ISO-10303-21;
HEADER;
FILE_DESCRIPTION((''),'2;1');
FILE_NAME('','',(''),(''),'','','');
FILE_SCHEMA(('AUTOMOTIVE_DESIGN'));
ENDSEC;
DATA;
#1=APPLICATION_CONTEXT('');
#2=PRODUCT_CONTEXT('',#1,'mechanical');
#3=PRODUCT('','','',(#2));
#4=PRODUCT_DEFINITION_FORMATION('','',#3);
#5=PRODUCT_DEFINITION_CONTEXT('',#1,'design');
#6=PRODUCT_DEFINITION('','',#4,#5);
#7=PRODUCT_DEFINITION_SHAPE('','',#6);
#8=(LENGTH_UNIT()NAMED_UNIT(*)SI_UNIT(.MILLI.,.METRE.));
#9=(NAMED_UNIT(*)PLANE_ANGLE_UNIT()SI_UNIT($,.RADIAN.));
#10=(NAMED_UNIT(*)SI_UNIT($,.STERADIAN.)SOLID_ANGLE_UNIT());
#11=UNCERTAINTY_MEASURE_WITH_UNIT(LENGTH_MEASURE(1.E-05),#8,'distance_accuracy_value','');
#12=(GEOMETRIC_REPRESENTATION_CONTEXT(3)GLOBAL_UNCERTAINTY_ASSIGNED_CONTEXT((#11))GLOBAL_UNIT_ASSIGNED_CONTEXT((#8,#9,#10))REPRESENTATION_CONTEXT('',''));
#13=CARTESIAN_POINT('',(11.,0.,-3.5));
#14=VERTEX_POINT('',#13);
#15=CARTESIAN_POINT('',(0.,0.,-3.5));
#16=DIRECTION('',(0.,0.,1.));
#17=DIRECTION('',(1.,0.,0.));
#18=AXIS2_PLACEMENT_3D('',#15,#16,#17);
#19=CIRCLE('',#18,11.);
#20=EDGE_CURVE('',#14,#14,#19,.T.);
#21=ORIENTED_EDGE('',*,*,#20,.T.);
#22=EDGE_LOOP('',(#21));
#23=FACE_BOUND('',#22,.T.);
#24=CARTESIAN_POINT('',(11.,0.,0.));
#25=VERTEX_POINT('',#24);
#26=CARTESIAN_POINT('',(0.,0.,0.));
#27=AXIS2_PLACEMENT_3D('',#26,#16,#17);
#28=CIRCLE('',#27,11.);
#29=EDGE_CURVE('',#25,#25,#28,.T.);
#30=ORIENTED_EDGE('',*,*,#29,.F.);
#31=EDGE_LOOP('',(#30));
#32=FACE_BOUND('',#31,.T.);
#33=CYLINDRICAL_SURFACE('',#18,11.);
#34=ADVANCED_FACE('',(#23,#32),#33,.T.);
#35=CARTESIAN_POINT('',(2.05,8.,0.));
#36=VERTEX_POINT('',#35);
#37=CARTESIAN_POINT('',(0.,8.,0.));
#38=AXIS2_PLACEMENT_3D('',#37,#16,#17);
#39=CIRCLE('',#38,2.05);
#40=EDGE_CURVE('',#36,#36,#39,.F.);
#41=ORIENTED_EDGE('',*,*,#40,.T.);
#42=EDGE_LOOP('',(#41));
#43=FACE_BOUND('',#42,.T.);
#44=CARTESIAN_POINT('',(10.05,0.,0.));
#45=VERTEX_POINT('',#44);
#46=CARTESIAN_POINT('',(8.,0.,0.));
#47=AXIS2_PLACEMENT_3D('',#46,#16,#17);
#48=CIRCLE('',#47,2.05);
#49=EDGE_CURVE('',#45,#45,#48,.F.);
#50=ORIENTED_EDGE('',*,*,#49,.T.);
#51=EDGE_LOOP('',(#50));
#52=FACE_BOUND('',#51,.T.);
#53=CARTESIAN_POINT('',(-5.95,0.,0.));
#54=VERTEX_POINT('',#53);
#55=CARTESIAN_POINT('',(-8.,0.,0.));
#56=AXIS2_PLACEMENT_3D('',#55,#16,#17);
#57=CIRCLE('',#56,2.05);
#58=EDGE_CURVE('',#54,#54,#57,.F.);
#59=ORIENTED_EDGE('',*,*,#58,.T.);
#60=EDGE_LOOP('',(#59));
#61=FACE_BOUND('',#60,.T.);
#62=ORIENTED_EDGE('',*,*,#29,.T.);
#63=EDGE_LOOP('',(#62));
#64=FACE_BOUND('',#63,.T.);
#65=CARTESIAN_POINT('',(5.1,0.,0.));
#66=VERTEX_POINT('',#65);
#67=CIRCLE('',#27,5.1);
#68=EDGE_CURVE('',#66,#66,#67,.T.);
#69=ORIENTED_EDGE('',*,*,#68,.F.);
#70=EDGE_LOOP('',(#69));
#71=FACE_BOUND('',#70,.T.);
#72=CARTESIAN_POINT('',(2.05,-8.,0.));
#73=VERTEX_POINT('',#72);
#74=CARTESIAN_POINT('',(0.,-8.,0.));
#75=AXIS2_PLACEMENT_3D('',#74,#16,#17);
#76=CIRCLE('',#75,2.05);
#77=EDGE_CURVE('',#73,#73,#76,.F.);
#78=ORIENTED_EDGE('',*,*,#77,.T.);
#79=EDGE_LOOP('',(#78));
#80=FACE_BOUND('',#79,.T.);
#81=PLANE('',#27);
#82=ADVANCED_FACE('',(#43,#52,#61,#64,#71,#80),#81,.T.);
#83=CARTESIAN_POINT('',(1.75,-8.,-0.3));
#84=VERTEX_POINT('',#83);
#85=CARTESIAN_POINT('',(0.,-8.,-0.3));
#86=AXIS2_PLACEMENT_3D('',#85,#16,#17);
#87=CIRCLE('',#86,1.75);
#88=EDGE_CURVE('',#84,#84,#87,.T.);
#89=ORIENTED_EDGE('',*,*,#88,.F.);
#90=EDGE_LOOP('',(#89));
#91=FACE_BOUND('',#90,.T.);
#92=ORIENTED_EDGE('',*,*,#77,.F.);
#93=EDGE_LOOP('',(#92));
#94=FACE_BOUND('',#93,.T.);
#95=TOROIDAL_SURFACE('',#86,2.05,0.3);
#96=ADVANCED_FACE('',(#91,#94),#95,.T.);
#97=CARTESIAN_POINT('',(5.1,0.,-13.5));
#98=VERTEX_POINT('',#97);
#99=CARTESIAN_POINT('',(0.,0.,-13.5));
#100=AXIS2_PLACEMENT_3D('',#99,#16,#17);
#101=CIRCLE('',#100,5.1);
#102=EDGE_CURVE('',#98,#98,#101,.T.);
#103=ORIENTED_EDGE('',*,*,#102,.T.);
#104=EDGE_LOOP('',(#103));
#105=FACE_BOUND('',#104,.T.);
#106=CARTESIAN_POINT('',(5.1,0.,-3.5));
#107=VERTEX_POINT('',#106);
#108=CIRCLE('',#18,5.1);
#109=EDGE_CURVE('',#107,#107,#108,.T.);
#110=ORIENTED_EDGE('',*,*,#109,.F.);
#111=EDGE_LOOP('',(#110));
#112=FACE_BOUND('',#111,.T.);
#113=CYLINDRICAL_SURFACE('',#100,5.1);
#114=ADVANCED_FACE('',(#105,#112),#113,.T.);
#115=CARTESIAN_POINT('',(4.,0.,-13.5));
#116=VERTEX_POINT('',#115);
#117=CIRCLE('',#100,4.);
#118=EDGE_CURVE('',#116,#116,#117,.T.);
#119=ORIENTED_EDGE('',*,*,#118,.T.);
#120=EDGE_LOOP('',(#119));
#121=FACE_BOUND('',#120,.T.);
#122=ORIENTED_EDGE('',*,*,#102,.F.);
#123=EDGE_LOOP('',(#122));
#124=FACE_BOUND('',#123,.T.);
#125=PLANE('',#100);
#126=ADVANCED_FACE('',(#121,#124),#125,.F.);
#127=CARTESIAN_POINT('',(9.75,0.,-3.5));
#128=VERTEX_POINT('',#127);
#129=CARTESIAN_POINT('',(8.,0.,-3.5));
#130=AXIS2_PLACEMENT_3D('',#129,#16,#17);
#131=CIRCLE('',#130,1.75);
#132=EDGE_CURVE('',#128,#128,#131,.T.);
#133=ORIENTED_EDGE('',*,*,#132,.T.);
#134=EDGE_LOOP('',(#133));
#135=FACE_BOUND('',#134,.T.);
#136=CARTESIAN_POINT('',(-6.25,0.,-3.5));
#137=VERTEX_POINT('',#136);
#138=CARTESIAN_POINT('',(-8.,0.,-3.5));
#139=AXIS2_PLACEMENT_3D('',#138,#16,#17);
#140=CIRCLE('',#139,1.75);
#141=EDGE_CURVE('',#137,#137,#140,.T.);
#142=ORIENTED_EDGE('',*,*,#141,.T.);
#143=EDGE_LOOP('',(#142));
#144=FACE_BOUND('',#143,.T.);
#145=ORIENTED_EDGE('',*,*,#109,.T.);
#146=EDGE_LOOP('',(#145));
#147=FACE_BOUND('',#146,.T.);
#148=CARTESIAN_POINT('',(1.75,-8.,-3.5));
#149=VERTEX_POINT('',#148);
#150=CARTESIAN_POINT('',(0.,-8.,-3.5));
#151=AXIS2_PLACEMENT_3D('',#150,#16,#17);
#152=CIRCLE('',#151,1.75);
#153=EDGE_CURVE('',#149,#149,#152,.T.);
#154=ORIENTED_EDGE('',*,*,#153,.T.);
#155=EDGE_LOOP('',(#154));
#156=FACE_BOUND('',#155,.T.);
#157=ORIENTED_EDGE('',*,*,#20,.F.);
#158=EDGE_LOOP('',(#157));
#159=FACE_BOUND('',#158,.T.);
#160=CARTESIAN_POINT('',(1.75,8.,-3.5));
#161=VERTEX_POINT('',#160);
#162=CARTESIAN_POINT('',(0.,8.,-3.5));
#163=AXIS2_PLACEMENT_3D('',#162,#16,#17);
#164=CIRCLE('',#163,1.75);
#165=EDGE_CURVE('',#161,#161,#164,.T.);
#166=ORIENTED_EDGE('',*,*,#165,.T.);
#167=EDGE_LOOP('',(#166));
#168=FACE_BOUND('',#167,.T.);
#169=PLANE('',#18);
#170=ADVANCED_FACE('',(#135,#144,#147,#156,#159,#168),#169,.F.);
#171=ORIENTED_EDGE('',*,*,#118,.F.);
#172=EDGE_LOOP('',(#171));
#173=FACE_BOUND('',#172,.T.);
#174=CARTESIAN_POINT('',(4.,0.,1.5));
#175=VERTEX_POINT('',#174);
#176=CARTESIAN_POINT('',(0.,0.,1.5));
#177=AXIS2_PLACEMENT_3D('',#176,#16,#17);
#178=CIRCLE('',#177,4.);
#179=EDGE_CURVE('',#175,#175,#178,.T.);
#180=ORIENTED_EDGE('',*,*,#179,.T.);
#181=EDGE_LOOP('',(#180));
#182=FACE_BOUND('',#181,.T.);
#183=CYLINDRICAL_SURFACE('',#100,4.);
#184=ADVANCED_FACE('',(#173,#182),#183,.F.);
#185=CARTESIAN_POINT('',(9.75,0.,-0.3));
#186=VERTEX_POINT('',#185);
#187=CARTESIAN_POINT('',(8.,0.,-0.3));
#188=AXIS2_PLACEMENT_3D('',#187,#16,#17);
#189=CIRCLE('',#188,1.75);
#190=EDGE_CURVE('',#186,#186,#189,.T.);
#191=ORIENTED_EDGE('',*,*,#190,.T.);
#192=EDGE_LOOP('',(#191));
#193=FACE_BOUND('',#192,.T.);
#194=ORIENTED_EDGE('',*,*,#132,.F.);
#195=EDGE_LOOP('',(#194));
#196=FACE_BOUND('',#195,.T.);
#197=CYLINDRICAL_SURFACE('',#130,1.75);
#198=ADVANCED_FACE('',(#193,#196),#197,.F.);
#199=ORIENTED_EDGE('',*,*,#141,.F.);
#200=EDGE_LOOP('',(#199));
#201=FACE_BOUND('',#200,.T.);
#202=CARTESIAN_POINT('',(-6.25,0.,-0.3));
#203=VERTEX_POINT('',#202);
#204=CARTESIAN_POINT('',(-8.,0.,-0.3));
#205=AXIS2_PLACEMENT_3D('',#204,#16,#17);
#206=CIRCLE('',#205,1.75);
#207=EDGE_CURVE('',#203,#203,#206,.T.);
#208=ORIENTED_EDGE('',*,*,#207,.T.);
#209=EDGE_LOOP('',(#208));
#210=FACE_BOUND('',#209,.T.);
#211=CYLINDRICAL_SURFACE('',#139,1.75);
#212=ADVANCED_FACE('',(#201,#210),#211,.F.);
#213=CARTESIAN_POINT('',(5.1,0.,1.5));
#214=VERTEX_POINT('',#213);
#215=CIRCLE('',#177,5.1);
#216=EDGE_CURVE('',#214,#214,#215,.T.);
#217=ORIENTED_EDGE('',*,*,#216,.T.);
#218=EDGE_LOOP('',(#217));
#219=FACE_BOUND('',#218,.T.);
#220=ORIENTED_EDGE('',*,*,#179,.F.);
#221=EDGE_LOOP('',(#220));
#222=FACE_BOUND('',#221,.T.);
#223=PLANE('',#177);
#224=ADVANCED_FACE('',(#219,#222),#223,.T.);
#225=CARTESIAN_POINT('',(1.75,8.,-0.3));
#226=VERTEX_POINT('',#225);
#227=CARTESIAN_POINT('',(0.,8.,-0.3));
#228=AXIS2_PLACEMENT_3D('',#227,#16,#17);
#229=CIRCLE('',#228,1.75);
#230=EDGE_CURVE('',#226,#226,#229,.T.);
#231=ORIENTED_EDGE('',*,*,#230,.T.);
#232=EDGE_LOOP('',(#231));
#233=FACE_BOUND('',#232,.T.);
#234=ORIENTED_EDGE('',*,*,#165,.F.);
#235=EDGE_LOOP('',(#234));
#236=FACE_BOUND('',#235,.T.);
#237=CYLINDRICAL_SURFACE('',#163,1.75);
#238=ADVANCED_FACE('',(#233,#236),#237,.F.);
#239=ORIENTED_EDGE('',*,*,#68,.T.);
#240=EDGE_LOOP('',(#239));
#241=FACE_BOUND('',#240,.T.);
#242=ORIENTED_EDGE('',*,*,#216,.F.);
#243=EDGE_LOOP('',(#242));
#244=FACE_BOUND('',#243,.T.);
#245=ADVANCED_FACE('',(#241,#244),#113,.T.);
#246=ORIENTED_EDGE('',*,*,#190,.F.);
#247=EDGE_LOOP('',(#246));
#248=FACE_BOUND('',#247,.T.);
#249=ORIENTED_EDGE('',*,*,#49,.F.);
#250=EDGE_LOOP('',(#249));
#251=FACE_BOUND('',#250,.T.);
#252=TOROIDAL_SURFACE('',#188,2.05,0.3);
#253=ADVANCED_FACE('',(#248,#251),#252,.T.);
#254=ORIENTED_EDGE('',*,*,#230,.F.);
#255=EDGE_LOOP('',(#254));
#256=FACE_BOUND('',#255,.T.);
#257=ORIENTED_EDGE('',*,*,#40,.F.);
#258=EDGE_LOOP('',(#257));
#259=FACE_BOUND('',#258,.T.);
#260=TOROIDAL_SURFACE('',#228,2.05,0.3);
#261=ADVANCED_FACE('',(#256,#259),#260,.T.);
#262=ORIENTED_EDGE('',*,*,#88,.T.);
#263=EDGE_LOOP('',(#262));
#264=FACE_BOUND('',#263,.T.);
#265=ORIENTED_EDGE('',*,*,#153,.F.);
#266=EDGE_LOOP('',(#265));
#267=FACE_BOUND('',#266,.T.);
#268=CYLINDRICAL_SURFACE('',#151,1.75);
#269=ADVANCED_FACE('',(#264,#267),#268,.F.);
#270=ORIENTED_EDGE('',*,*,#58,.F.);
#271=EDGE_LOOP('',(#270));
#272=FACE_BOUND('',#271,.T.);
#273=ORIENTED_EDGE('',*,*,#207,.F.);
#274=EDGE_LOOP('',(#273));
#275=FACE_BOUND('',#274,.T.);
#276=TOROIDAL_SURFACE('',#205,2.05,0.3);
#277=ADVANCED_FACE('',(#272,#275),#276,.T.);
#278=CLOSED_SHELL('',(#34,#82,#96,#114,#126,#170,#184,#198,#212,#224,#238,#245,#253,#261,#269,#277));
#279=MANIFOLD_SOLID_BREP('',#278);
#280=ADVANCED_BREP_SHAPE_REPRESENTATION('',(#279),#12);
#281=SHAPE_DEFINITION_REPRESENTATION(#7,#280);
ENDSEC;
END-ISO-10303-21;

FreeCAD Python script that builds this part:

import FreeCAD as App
import Part
import Sketcher


def edges_at(feature, points):
    """Names of the edges that pass closest to the given points."""
    edges = feature.Shape.Edges
    near = lambda p: min(range(len(edges)), key=lambda i: edges[i].distToShape(Part.Vertex(*p))[0])
    return sorted({f"Edge{near(p) + 1}" for p in points})

doc = App.newDocument("Part")
body = doc.addObject("PartDesign::Body", "Body")

# Sketch on XY plane
sketch1 = body.newObject("Sketcher::SketchObject", "Sketch")
sketch1.AttachmentSupport = (doc.getObject("XY_Plane"), [""])
sketch1.MapMode = "FlatFace"
sketch1.addGeometry(Part.Circle(App.Vector(0, 0, 0), App.Vector(0, 0, 1), 11), False)
sketch1.addGeometry(Part.Circle(App.Vector(0, -8, 0), App.Vector(0, 0, 1), 1.8), False)
sketch1.addGeometry(Part.Circle(App.Vector(-8, 0, 0), App.Vector(0, 0, 1), 1.8), False)
sketch1.addGeometry(Part.Circle(App.Vector(0, 0, 0), App.Vector(0, 0, 1), 5.1), False)
sketch1.addGeometry(Part.Circle(App.Vector(8, 0, 0), App.Vector(0, 0, 1), 1.8), False)
sketch1.addGeometry(Part.Circle(App.Vector(0, 8, 0), App.Vector(0, 0, 1), 1.8), False)
sketch1.addConstraint(Sketcher.Constraint("Coincident", 0, 3, -1, 1))
sketch1.addConstraint(Sketcher.Constraint("Coincident", 3, 3, -1, 1))
sketch1.addConstraint(Sketcher.Constraint("Equal", 1, 2))
sketch1.addConstraint(Sketcher.Constraint("Equal", 2, 4))
sketch1.addConstraint(Sketcher.Constraint("Equal", 4, 5))
sketch1.addConstraint(Sketcher.Constraint("Symmetric", 2, 3, 4, 3, -1, 1))
sketch1.addConstraint(Sketcher.Constraint("Symmetric", 1, 3, 5, 3, -1, 1))
sketch1.addConstraint(Sketcher.Constraint("PointOnObject", 1, 3, -2))
sketch1.addConstraint(Sketcher.Constraint("PointOnObject", 2, 3, -1))
sketch1.addConstraint(Sketcher.Constraint("Diameter", 0, 22.0))
sketch1.addConstraint(Sketcher.Constraint("Diameter", 1, 3.5))
sketch1.addConstraint(Sketcher.Constraint("Diameter", 3, 10.2))
sketch1.addConstraint(Sketcher.Constraint("DistanceY", 1, 3, -1, 1, 8.0))
sketch1.addConstraint(Sketcher.Constraint("DistanceX", 2, 3, -1, 1, 8.0))
pad1 = body.newObject("PartDesign::Pad", "Pad")
pad1.Profile = sketch1
pad1.Length = 3.5
pad1.Reversed = True

# Sketch on XY plane
sketch2 = body.newObject("Sketcher::SketchObject", "Sketch001")
sketch2.AttachmentSupport = (doc.getObject("XY_Plane"), [""])
sketch2.MapMode = "FlatFace"
sketch2.addGeometry(Part.Circle(App.Vector(0, 0, 0), App.Vector(0, 0, 1), 5.1), False)
sketch2.addGeometry(Part.Circle(App.Vector(0, 0, 0), App.Vector(0, 0, 1), 4), False)
sketch2.addConstraint(Sketcher.Constraint("Coincident", 0, 3, -1, 1))
sketch2.addConstraint(Sketcher.Constraint("Coincident", 1, 3, -1, 1))
sketch2.addConstraint(Sketcher.Constraint("Diameter", 1, 8.0))
sketch2.addConstraint(Sketcher.Constraint("Diameter", 0, 10.2))
pad2 = body.newObject("PartDesign::Pad", "Pad001")
pad2.Profile = sketch2
pad2.Type = "TwoLengths"
pad2.Length = 1.5
pad2.Length2 = 13.5
doc.recompute()

fillet = body.newObject("PartDesign::Fillet", "Fillet")
fillet.Base = (pad2, edges_at(pad2, [
    (6.25, 0, 0),
    (-1.75, -8, 0),
    (-9.75, 0, 0),
    (-1.75, 8, 0),
]))
fillet.Radius = 0.3

doc.recompute()
